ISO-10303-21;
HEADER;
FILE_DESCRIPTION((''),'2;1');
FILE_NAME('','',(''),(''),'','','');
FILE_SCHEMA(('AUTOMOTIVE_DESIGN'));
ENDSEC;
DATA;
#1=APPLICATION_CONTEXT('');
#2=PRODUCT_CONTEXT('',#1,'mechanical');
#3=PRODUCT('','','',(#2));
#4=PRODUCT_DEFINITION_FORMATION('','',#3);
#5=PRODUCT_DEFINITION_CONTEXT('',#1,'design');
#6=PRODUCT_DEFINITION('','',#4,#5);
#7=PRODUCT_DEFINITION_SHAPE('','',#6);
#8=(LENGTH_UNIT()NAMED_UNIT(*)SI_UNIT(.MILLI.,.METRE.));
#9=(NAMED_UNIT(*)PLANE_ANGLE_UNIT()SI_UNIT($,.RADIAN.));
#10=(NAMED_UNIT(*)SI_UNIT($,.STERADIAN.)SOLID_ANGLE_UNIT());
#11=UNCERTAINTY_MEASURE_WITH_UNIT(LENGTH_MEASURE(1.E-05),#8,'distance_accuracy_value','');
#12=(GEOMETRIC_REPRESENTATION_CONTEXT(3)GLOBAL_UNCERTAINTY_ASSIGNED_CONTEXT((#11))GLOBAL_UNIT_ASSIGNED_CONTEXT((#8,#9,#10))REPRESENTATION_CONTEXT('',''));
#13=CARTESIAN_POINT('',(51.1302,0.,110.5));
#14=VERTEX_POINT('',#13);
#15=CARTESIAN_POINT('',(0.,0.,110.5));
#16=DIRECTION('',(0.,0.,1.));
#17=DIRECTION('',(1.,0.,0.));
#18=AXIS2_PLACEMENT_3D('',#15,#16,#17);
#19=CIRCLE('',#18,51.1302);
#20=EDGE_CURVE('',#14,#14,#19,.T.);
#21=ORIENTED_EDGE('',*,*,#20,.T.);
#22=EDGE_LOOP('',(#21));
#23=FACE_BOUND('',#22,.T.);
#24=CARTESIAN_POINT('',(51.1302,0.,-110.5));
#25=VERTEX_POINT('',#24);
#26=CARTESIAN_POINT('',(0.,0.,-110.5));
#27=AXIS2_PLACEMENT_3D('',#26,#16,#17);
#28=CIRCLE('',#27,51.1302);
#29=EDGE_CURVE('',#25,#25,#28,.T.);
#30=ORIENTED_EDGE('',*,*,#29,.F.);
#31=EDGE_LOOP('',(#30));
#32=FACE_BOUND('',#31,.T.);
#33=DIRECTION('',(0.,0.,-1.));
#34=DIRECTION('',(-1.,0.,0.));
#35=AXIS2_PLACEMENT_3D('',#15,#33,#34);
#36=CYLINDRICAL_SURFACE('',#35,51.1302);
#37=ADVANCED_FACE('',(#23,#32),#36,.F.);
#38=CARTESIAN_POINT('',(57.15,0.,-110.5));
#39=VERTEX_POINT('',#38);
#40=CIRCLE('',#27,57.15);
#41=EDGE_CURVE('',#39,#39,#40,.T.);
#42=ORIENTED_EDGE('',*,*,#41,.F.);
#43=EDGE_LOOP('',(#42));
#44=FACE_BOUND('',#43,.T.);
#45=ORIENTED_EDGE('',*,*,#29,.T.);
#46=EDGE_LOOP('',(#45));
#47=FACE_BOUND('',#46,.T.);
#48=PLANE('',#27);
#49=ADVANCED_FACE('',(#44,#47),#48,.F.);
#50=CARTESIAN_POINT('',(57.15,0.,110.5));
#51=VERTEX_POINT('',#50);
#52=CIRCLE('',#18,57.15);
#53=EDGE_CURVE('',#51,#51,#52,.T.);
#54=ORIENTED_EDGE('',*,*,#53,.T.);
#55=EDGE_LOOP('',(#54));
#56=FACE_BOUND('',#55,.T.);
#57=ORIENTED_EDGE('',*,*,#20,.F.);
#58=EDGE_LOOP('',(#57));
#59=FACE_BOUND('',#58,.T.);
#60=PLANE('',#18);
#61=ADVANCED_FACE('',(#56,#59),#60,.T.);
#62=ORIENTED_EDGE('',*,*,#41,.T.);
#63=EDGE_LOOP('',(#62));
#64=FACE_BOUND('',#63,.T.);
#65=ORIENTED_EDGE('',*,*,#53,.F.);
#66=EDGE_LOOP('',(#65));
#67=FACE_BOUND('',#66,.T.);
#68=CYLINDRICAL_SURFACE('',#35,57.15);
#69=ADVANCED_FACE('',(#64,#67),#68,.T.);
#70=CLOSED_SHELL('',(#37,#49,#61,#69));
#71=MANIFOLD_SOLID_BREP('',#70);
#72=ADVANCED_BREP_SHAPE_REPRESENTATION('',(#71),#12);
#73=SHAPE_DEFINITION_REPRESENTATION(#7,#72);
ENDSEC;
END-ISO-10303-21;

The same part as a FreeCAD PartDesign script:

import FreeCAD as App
import Part
import Sketcher
Q = App.Units.Quantity

doc = App.newDocument("Part")
body = doc.addObject("PartDesign::Body", "Body")

# Sketch on XY plane
sketch1 = body.newObject("Sketcher::SketchObject", "Sketch")
sketch1.AttachmentSupport = (doc.getObject("XY_Plane"), [""])
sketch1.MapMode = "FlatFace"
sketch1.addGeometry([
    Part.Circle(App.Vector(0, 0, 0), App.Vector(0, 0, 1), 57),
    Part.Circle(App.Vector(0, 0, 0), App.Vector(0, 0, 1), 51),
], False)
sketch1.addConstraint([
    Sketcher.Constraint("Coincident", 0, 3, -1, 1),
    Sketcher.Constraint("Coincident", 1, 3, -1, 1),
    Sketcher.Constraint("Diameter", 0, Q("4.5 in")),
    Sketcher.Constraint("Diameter", 1, Q("4.026 in")),
])
pad1 = body.newObject("PartDesign::Pad", "Pad")
pad1.Profile = sketch1
pad1.Length = 221
pad1.Midplane = True

doc.recompute()
